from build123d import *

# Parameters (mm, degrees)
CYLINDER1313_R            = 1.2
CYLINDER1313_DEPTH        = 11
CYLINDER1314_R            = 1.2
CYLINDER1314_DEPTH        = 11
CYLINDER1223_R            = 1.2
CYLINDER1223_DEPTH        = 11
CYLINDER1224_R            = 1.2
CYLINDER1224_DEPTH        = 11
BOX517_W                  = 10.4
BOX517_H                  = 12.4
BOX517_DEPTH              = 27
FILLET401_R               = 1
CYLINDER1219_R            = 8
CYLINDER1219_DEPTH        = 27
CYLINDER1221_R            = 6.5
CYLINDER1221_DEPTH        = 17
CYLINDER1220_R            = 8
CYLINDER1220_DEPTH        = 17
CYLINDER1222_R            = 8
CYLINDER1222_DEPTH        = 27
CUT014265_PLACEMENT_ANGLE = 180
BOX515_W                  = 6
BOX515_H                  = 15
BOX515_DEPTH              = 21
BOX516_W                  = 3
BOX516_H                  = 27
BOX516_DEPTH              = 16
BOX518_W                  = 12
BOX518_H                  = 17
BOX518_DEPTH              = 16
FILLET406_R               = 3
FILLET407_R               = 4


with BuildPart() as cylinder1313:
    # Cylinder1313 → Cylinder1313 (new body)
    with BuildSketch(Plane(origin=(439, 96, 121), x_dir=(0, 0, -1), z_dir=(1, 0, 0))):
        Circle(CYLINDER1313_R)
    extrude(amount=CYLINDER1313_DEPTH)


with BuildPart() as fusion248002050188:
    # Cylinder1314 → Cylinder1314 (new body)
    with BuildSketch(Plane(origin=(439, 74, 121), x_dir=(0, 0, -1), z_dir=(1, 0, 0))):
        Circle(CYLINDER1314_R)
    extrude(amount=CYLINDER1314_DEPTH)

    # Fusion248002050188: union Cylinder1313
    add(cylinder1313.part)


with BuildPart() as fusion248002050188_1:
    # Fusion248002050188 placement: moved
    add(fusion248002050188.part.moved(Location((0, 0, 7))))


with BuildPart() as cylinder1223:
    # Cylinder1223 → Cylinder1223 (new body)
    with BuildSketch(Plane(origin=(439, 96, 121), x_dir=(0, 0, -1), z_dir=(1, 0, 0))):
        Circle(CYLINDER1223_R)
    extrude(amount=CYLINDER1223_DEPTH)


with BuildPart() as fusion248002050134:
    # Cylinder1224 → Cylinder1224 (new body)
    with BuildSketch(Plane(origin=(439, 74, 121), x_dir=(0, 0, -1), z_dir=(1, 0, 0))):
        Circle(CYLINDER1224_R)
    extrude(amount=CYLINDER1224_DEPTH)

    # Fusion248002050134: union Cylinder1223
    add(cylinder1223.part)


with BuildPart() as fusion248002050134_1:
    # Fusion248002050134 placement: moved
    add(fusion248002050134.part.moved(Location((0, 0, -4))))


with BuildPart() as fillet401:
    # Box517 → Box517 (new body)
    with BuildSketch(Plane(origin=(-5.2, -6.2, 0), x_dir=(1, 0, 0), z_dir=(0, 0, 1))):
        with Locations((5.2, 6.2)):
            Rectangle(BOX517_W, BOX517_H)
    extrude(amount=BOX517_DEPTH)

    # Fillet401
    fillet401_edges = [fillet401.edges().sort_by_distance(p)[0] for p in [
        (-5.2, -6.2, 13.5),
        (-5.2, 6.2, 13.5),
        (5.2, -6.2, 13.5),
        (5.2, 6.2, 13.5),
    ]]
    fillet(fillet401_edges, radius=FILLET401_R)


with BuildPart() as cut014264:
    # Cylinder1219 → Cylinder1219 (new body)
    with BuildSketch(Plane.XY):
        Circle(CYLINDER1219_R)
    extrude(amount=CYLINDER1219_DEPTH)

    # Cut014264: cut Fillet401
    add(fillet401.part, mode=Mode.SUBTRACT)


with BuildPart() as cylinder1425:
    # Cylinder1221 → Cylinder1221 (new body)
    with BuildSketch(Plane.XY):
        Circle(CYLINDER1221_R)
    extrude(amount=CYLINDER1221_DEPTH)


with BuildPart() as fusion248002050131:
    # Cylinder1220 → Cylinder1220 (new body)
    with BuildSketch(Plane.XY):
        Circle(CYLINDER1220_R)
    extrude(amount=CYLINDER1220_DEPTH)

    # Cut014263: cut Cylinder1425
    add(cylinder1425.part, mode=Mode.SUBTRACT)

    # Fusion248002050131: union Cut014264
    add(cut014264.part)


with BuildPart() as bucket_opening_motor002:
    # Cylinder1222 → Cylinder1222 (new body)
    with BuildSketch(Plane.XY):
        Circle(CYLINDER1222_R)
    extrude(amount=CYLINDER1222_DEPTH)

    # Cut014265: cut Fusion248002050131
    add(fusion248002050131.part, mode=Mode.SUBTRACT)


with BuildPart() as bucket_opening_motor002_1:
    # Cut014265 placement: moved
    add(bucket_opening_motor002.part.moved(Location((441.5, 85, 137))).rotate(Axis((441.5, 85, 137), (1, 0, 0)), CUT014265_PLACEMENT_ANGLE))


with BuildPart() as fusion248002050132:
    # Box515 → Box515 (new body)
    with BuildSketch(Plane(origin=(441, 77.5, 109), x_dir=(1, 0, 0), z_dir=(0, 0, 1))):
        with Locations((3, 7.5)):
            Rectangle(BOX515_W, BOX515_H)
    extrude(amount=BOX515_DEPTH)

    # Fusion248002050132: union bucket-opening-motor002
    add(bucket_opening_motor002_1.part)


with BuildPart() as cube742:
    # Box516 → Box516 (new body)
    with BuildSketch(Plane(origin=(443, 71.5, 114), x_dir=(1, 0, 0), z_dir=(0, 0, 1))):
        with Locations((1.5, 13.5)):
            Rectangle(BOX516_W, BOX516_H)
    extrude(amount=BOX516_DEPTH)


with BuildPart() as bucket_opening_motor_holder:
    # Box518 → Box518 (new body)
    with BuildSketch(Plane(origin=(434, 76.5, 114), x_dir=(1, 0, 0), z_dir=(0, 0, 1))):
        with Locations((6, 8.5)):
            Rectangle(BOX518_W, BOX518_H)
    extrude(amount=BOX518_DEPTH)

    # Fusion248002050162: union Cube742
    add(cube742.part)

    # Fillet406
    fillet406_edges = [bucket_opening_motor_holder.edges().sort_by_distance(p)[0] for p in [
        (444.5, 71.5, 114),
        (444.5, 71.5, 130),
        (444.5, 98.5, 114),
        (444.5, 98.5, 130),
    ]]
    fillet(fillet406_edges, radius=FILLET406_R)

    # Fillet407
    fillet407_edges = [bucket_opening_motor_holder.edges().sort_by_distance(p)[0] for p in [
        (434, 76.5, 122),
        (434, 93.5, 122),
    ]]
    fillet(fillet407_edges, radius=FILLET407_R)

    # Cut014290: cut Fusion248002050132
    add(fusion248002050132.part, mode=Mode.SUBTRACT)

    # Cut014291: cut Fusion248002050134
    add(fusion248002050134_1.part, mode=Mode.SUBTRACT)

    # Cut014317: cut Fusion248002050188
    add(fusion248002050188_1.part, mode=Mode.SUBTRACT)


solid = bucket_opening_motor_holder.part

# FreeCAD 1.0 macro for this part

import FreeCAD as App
import Part
import Sketcher
from FreeCAD import Vector


def edges_at(feature, points):
    """Names of the edges that pass closest to the given points."""
    edges = feature.Shape.Edges
    near = lambda p: min(range(len(edges)), key=lambda i: edges[i].distToShape(Part.Vertex(*p))[0])
    return sorted({f"Edge{near(p) + 1}" for p in points})


def add_polygon(sketch, points):
    """Adds a closed chain of lines whose ends are joined by coincident constraints."""
    first, n = sketch.GeometryCount, len(points)
    for a, b in zip(points, points[1:] + points[:1]):
        sketch.addGeometry(Part.LineSegment(App.Vector(*a, 0), App.Vector(*b, 0)), False)
    for i in range(n):
        sketch.addConstraint(Sketcher.Constraint("Coincident", first + i, 2, first + (i + 1) % n, 1))

doc = App.newDocument("Part")
body = doc.addObject("PartDesign::Body", "Body")

# Sketch on YZ plane
sketch1 = body.newObject("Sketcher::SketchObject", "Sketch")
sketch1.AttachmentSupport = (doc.getObject("YZ_Plane"), [""])
sketch1.MapMode = "FlatFace"
sketch1.AttachmentOffset = App.Placement(Vector(0, 0, 439), App.Rotation())
sketch1.addGeometry(Part.Circle(Vector(96, 121, 0), Vector(0, 0, 1), 1.2), False)
sketch1.addConstraint([
    Sketcher.Constraint("Diameter", 0, 2.4),
    Sketcher.Constraint("DistanceX", -1, 1, 0, 3, 96.0),
    Sketcher.Constraint("DistanceY", -1, 1, 0, 3, 121.0),
])
pad1 = body.newObject("PartDesign::Pad", "Pad")
pad1.Profile = sketch1
pad1.Length = 11
body2 = doc.addObject("PartDesign::Body", "Body001")
body2.AllowCompound = True

# Sketch on YZ plane
sketch2 = body2.newObject("Sketcher::SketchObject", "Sketch001")
sketch2.AttachmentSupport = (doc.getObject("YZ_Plane001"), [""])
sketch2.MapMode = "FlatFace"
sketch2.AttachmentOffset = App.Placement(Vector(0, 0, 439), App.Rotation())
sketch2.addGeometry(Part.Circle(Vector(74, 121, 0), Vector(0, 0, 1), 1.2), False)
sketch2.addConstraint([
    Sketcher.Constraint("Diameter", 0, 2.4),
    Sketcher.Constraint("DistanceX", -1, 1, 0, 3, 74.0),
    Sketcher.Constraint("DistanceY", -1, 1, 0, 3, 121.0),
])
pad2 = body2.newObject("PartDesign::Pad", "Pad001")
pad2.Profile = sketch2
pad2.Length = 11
doc.recompute()

boolean = body2.newObject("PartDesign::Boolean", "Boolean")
boolean.Type = "Fuse"
boolean.addObjects([body])
body3 = doc.addObject("PartDesign::Body", "Body002")
body3.AllowCompound = True
doc.recompute()

body2.Placement = App.Placement(Vector(0, 0, 7), App.Rotation(Vector(0, 0, 1), 0))
boolean2 = body3.newObject("PartDesign::Boolean", "Boolean001")
boolean2.Type = "Fuse"
boolean2.addObjects([body2])
body4 = doc.addObject("PartDesign::Body", "Body003")

# Sketch on YZ plane
sketch3 = body4.newObject("Sketcher::SketchObject", "Sketch002")
sketch3.AttachmentSupport = (doc.getObject("YZ_Plane003"), [""])
sketch3.MapMode = "FlatFace"
sketch3.AttachmentOffset = App.Placement(Vector(0, 0, 439), App.Rotation())
sketch3.addGeometry(Part.Circle(Vector(96, 121, 0), Vector(0, 0, 1), 1.2), False)
sketch3.addConstraint([
    Sketcher.Constraint("Diameter", 0, 2.4),
    Sketcher.Constraint("DistanceX", -1, 1, 0, 3, 96.0),
    Sketcher.Constraint("DistanceY", -1, 1, 0, 3, 121.0),
])
pad3 = body4.newObject("PartDesign::Pad", "Pad002")
pad3.Profile = sketch3
pad3.Length = 11
body5 = doc.addObject("PartDesign::Body", "Body004")
body5.AllowCompound = True

# Sketch on YZ plane
sketch4 = body5.newObject("Sketcher::SketchObject", "Sketch003")
sketch4.AttachmentSupport = (doc.getObject("YZ_Plane004"), [""])
sketch4.MapMode = "FlatFace"
sketch4.AttachmentOffset = App.Placement(Vector(0, 0, 439), App.Rotation())
sketch4.addGeometry(Part.Circle(Vector(74, 121, 0), Vector(0, 0, 1), 1.2), False)
sketch4.addConstraint([
    Sketcher.Constraint("Diameter", 0, 2.4),
    Sketcher.Constraint("DistanceX", -1, 1, 0, 3, 74.0),
    Sketcher.Constraint("DistanceY", -1, 1, 0, 3, 121.0),
])
pad4 = body5.newObject("PartDesign::Pad", "Pad003")
pad4.Profile = sketch4
pad4.Length = 11
doc.recompute()

boolean3 = body5.newObject("PartDesign::Boolean", "Boolean002")
boolean3.Type = "Fuse"
boolean3.addObjects([body4])
body6 = doc.addObject("PartDesign::Body", "Body005")
body6.AllowCompound = True
doc.recompute()

body5.Placement = App.Placement(Vector(0, 0, -4), App.Rotation(Vector(0, 0, 1), 0))
boolean4 = body6.newObject("PartDesign::Boolean", "Boolean003")
boolean4.Type = "Fuse"
boolean4.addObjects([body5])
body7 = doc.addObject("PartDesign::Body", "Body006")

# Sketch on XY plane
sketch5 = body7.newObject("Sketcher::SketchObject", "Sketch004")
sketch5.AttachmentSupport = (doc.getObject("XY_Plane006"), [""])
sketch5.MapMode = "FlatFace"
add_polygon(sketch5, [(-5.2, 6.2), (-5.2, -6.2), (5.2, -6.2), (5.2, 6.2)])  # lines 0-3
sketch5.addConstraint([
    Sketcher.Constraint("Vertical", 0),
    Sketcher.Constraint("Horizontal", 1),
    Sketcher.Constraint("Vertical", 2),
    Sketcher.Constraint("Horizontal", 3),
    Sketcher.Constraint("Symmetric", 0, 2, 2, 2, -1, 1),
    Sketcher.Constraint("DistanceX", 1, 1, 1, 2, 10.4),
    Sketcher.Constraint("DistanceY", 0, 2, 0, 1, 12.4),
])
pad5 = body7.newObject("PartDesign::Pad", "Pad004")
pad5.Profile = sketch5
pad5.Length = 27
doc.recompute()

fillet = body7.newObject("PartDesign::Fillet", "Fillet")
fillet.Base = (pad5, edges_at(pad5, [
    (-5.2, -6.2, 13.5),
    (-5.2, 6.2, 13.5),
    (5.2, -6.2, 13.5),
    (5.2, 6.2, 13.5),
]))
fillet.Radius = 1
body8 = doc.addObject("PartDesign::Body", "Body007")

# Sketch on XY plane
sketch6 = body8.newObject("Sketcher::SketchObject", "Sketch005")
sketch6.AttachmentSupport = (doc.getObject("XY_Plane007"), [""])
sketch6.MapMode = "FlatFace"
sketch6.addGeometry(Part.Circle(Vector(0, 0, 0), Vector(0, 0, 1), 8), False)
sketch6.addConstraint([
    Sketcher.Constraint("Coincident", 0, 3, -1, 1),
    Sketcher.Constraint("Diameter", 0, 16.0),
])
pad6 = body8.newObject("PartDesign::Pad", "Pad005")
pad6.Profile = sketch6
pad6.Length = 27
doc.recompute()

boolean5 = body8.newObject("PartDesign::Boolean", "Boolean004")
boolean5.Type = "Cut"
boolean5.addObjects([body7])
body9 = doc.addObject("PartDesign::Body", "Body008")

# Sketch on XY plane
sketch7 = body9.newObject("Sketcher::SketchObject", "Sketch006")
sketch7.AttachmentSupport = (doc.getObject("XY_Plane008"), [""])
sketch7.MapMode = "FlatFace"
sketch7.addGeometry(Part.Circle(Vector(0, 0, 0), Vector(0, 0, 1), 6.5), False)
sketch7.addConstraint([
    Sketcher.Constraint("Coincident", 0, 3, -1, 1),
    Sketcher.Constraint("Diameter", 0, 13.0),
])
pad7 = body9.newObject("PartDesign::Pad", "Pad006")
pad7.Profile = sketch7
pad7.Length = 17
body10 = doc.addObject("PartDesign::Body", "Body009")

# Sketch on XY plane
sketch8 = body10.newObject("Sketcher::SketchObject", "Sketch007")
sketch8.AttachmentSupport = (doc.getObject("XY_Plane009"), [""])
sketch8.MapMode = "FlatFace"
sketch8.addGeometry(Part.Circle(Vector(0, 0, 0), Vector(0, 0, 1), 8), False)
sketch8.addConstraint([
    Sketcher.Constraint("Coincident", 0, 3, -1, 1),
    Sketcher.Constraint("Diameter", 0, 16.0),
])
pad8 = body10.newObject("PartDesign::Pad", "Pad007")
pad8.Profile = sketch8
pad8.Length = 17
doc.recompute()

boolean6 = body10.newObject("PartDesign::Boolean", "Boolean005")
boolean6.Type = "Cut"
boolean6.addObjects([body9])
doc.recompute()

boolean7 = body10.newObject("PartDesign::Boolean", "Boolean006")
boolean7.Type = "Fuse"
boolean7.addObjects([body8])
body11 = doc.addObject("PartDesign::Body", "Body010")

# Sketch on XY plane
sketch9 = body11.newObject("Sketcher::SketchObject", "Sketch008")
sketch9.AttachmentSupport = (doc.getObject("XY_Plane010"), [""])
sketch9.MapMode = "FlatFace"
sketch9.addGeometry(Part.Circle(Vector(0, 0, 0), Vector(0, 0, 1), 8), False)
sketch9.addConstraint([
    Sketcher.Constraint("Coincident", 0, 3, -1, 1),
    Sketcher.Constraint("Diameter", 0, 16.0),
])
pad9 = body11.newObject("PartDesign::Pad", "Pad008")
pad9.Profile = sketch9
pad9.Length = 27
doc.recompute()

boolean8 = body11.newObject("PartDesign::Boolean", "Boolean007")
boolean8.Type = "Cut"
boolean8.addObjects([body10])
body12 = doc.addObject("PartDesign::Body", "Body011")
doc.recompute()

body11.Placement = App.Placement(Vector(441.5, 85, 137), App.Rotation(Vector(1, 0, 0), 180))
boolean9 = body12.newObject("PartDesign::Boolean", "Boolean008")
boolean9.Type = "Fuse"
boolean9.addObjects([body11])
body13 = doc.addObject("PartDesign::Body", "Body012")

# Sketch on XY plane
sketch10 = body13.newObject("Sketcher::SketchObject", "Sketch009")
sketch10.AttachmentSupport = (doc.getObject("XY_Plane012"), [""])
sketch10.MapMode = "FlatFace"
sketch10.AttachmentOffset = App.Placement(Vector(0, 0, 109), App.Rotation())
add_polygon(sketch10, [(441, 92.5), (441, 77.5), (447, 77.5), (447, 92.5)])  # lines 0-3
sketch10.addConstraint([
    Sketcher.Constraint("Vertical", 0),
    Sketcher.Constraint("Horizontal", 1),
    Sketcher.Constraint("Vertical", 2),
    Sketcher.Constraint("Horizontal", 3),
    Sketcher.Constraint("DistanceX", 1, 1, 1, 2, 6.0),
    Sketcher.Constraint("DistanceY", 0, 2, 0, 1, 15.0),
    Sketcher.Constraint("DistanceX", -1, 1, 0, 2, 441.0),
    Sketcher.Constraint("DistanceY", -1, 1, 0, 2, 77.5),
])
pad10 = body13.newObject("PartDesign::Pad", "Pad009")
pad10.Profile = sketch10
pad10.Length = 21
doc.recompute()

boolean10 = body13.newObject("PartDesign::Boolean", "Boolean009")
boolean10.Type = "Fuse"
boolean10.addObjects([body12])
body14 = doc.addObject("PartDesign::Body", "Body013")

# Sketch on XY plane
sketch11 = body14.newObject("Sketcher::SketchObject", "Sketch010")
sketch11.AttachmentSupport = (doc.getObject("XY_Plane013"), [""])
sketch11.MapMode = "FlatFace"
sketch11.AttachmentOffset = App.Placement(Vector(0, 0, 114), App.Rotation())
add_polygon(sketch11, [(443, 98.5), (443, 71.5), (446, 71.5), (446, 98.5)])  # lines 0-3
sketch11.addConstraint([
    Sketcher.Constraint("Vertical", 0),
    Sketcher.Constraint("Horizontal", 1),
    Sketcher.Constraint("Vertical", 2),
    Sketcher.Constraint("Horizontal", 3),
    Sketcher.Constraint("DistanceX", 1, 1, 1, 2, 3.0),
    Sketcher.Constraint("DistanceY", 0, 2, 0, 1, 27.0),
    Sketcher.Constraint("DistanceX", -1, 1, 0, 2, 443.0),
    Sketcher.Constraint("DistanceY", -1, 1, 0, 2, 71.5),
])
pad11 = body14.newObject("PartDesign::Pad", "Pad010")
pad11.Profile = sketch11
pad11.Length = 16
body15 = doc.addObject("PartDesign::Body", "Body014")

# Sketch on XY plane
sketch12 = body15.newObject("Sketcher::SketchObject", "Sketch011")
sketch12.AttachmentSupport = (doc.getObject("XY_Plane014"), [""])
sketch12.MapMode = "FlatFace"
sketch12.AttachmentOffset = App.Placement(Vector(0, 0, 114), App.Rotation())
add_polygon(sketch12, [(434, 93.5), (434, 76.5), (446, 76.5), (446, 93.5)])  # lines 0-3
sketch12.addConstraint([
    Sketcher.Constraint("Vertical", 0),
    Sketcher.Constraint("Horizontal", 1),
    Sketcher.Constraint("Vertical", 2),
    Sketcher.Constraint("Horizontal", 3),
    Sketcher.Constraint("DistanceX", 1, 1, 1, 2, 12.0),
    Sketcher.Constraint("DistanceY", 0, 2, 0, 1, 17.0),
    Sketcher.Constraint("DistanceX", -1, 1, 0, 2, 434.0),
    Sketcher.Constraint("DistanceY", -1, 1, 0, 2, 76.5),
])
pad12 = body15.newObject("PartDesign::Pad", "Pad011")
pad12.Profile = sketch12
pad12.Length = 16
doc.recompute()

boolean11 = body15.newObject("PartDesign::Boolean", "Boolean010")
boolean11.Type = "Fuse"
boolean11.addObjects([body14])
doc.recompute()

fillet2 = body15.newObject("PartDesign::Fillet", "Fillet001")
fillet2.Base = (boolean11, edges_at(boolean11, [
    (444.5, 71.5, 114),
    (444.5, 71.5, 130),
    (444.5, 98.5, 114),
    (444.5, 98.5, 130),
]))
fillet2.Radius = 3
doc.recompute()

fillet3 = body15.newObject("PartDesign::Fillet", "Fillet002")
fillet3.Base = (fillet2, edges_at(fillet2, [(434, 76.5, 122), (434, 93.5, 122)]))
fillet3.Radius = 4
doc.recompute()

boolean12 = body15.newObject("PartDesign::Boolean", "Boolean011")
boolean12.Type = "Cut"
boolean12.addObjects([body13])
doc.recompute()

boolean13 = body15.newObject("PartDesign::Boolean", "Boolean012")
boolean13.Type = "Cut"
boolean13.addObjects([body6])
doc.recompute()

boolean14 = body15.newObject("PartDesign::Boolean", "Boolean013")
boolean14.Type = "Cut"
boolean14.addObjects([body3])

doc.recompute()
